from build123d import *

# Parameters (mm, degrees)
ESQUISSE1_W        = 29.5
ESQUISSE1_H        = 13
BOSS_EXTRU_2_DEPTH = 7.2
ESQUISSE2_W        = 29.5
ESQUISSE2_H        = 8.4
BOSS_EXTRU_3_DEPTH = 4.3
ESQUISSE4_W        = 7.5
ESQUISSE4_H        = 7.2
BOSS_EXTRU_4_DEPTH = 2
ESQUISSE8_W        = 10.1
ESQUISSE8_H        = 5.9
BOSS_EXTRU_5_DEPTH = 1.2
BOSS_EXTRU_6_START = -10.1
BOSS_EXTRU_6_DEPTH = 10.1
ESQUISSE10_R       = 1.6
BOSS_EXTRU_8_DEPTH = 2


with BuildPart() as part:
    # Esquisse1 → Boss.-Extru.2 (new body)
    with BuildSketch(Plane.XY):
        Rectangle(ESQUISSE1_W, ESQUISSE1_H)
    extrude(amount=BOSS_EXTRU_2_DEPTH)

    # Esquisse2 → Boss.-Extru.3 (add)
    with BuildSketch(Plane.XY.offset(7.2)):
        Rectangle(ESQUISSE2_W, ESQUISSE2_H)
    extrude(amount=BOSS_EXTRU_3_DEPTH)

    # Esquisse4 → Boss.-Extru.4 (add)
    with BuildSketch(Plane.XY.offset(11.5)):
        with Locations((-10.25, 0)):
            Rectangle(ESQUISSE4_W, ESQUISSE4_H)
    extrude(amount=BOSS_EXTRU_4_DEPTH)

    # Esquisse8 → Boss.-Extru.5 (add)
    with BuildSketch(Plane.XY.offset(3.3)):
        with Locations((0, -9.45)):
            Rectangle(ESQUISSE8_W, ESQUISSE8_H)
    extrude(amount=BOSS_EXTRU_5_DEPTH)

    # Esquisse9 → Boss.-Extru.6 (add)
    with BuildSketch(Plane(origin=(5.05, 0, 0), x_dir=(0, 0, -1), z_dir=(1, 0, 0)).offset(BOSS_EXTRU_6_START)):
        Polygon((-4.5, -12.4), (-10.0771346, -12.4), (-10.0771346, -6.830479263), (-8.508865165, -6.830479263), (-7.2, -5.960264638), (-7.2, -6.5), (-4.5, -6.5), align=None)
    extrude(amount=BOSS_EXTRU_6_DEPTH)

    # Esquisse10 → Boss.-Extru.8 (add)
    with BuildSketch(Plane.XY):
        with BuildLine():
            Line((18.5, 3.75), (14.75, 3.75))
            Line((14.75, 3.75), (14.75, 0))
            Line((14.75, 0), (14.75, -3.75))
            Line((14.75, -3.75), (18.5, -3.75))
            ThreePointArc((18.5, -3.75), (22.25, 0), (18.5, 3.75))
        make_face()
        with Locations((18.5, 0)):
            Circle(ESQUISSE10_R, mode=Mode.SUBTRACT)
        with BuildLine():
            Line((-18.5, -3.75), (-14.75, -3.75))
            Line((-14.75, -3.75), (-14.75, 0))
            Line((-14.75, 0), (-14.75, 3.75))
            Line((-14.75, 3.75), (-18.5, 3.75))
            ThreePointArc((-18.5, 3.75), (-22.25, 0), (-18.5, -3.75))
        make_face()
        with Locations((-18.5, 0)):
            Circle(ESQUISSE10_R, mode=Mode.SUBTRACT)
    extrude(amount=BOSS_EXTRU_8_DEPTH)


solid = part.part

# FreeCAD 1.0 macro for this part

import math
import FreeCAD as App
import Part
import Sketcher

doc = App.newDocument("Part")
params = doc.addObject("Spreadsheet::Sheet", "Params")
for row, (alias, value) in enumerate([
    ("sketch1_height", "13 mm"),
    ("sketch1_width", "29.5 mm"),
    ("pad1_length", "7.2 mm"),
    ("sketch2_width", "29.5 mm"),
    ("sketch2_height", "8.4 mm"),
    ("pad2_length", "4.3 mm"),
    ("sketch3_width", "7.5 mm"),
    ("sketch3_height", "7.2 mm"),
    ("pad3_length", "2 mm"),
    ("sketch4_width", "10.1 mm"),
    ("sketch4_height", "5.9 mm"),
    ("pad4_length", "1.2 mm"),
    ("sketch5_width", "5.9 mm"),
    ("sketch5_height", "2.7 mm"),
    ("pad5_length", "10.1 mm"),
    ("sketch6_diameter", "3.2 mm"),
    ("sketch6_radius", "3.75 mm"),
    ("sketch6_width", "3.75 mm"),
    ("pad6_length", "2 mm"),
], start=1):
    params.set(f"A{row}", alias)
    params.set(f"B{row}", "=" + value)
    params.setAlias(f"B{row}", alias)

body = doc.addObject("PartDesign::Body", "Body")

# Sketch on XY plane
sketch1 = doc.addObject("Sketcher::SketchObject", "Sketch")
body.addObject(sketch1)
sketch1.AttachmentSupport = (doc.XY_Plane, [""])
sketch1.MapMode = "FlatFace"
sketch1.addGeometry([
    Part.LineSegment(App.Vector(-15, 6, 0), App.Vector(-15, -6, 0)),
    Part.LineSegment(App.Vector(-15, -6, 0), App.Vector(15, -6, 0)),
    Part.LineSegment(App.Vector(15, -6, 0), App.Vector(15, 6, 0)),
    Part.LineSegment(App.Vector(15, 6, 0), App.Vector(-15, 6, 0)),
], False)
sketch1.addConstraint([
    Sketcher.Constraint("Coincident", 0, 2, 1, 1),
    Sketcher.Constraint("Coincident", 1, 2, 2, 1),
    Sketcher.Constraint("Coincident", 2, 2, 3, 1),
    Sketcher.Constraint("Coincident", 3, 2, 0, 1),
    Sketcher.Constraint("Vertical", 0),
    Sketcher.Constraint("Horizontal", 1),
    Sketcher.Constraint("Vertical", 2),
    Sketcher.Constraint("Horizontal", 3),
    Sketcher.Constraint("Symmetric", 0, 2, 2, 2, -1, 1),
    Sketcher.Constraint("DistanceY", 0, 2, 0, 1, 13.0),
    Sketcher.Constraint("DistanceX", 1, 1, 1, 2, 29.5),
])
sketch1.setExpression("Constraints[9]", "Params.sketch1_height")
sketch1.setExpression("Constraints[10]", "Params.sketch1_width")
pad1 = doc.addObject("PartDesign::Pad", "Pad")
body.addObject(pad1)
pad1.Profile = sketch1
pad1.setExpression("Length", "Params.pad1_length")

# Sketch on XY plane
sketch2 = doc.addObject("Sketcher::SketchObject", "Sketch001")
body.addObject(sketch2)
sketch2.AttachmentSupport = (doc.XY_Plane, [""])
sketch2.MapMode = "FlatFace"
sketch2.AttachmentOffset = App.Placement(App.Vector(0, 0, 7.2), App.Rotation())
sketch2.addGeometry([
    Part.LineSegment(App.Vector(-15, 4, 0), App.Vector(-15, -4, 0)),
    Part.LineSegment(App.Vector(-15, -4, 0), App.Vector(15, -4, 0)),
    Part.LineSegment(App.Vector(15, -4, 0), App.Vector(15, 4, 0)),
    Part.LineSegment(App.Vector(15, 4, 0), App.Vector(-15, 4, 0)),
], False)
sketch2.addConstraint([
    Sketcher.Constraint("Coincident", 0, 2, 1, 1),
    Sketcher.Constraint("Coincident", 1, 2, 2, 1),
    Sketcher.Constraint("Coincident", 2, 2, 3, 1),
    Sketcher.Constraint("Coincident", 3, 2, 0, 1),
    Sketcher.Constraint("Vertical", 0),
    Sketcher.Constraint("Horizontal", 1),
    Sketcher.Constraint("Vertical", 2),
    Sketcher.Constraint("Horizontal", 3),
    Sketcher.Constraint("Symmetric", 0, 2, 2, 2, -1, 1),
    Sketcher.Constraint("DistanceX", 1, 1, 1, 2, 29.5),
    Sketcher.Constraint("DistanceY", 0, 2, 0, 1, 8.4),
])
sketch2.setExpression("Constraints[9]", "Params.sketch2_width")
sketch2.setExpression("Constraints[10]", "Params.sketch2_height")
pad2 = doc.addObject("PartDesign::Pad", "Pad001")
body.addObject(pad2)
pad2.Profile = sketch2
pad2.setExpression("Length", "Params.pad2_length")

# Sketch on XY plane
sketch3 = doc.addObject("Sketcher::SketchObject", "Sketch002")
body.addObject(sketch3)
sketch3.AttachmentSupport = (doc.XY_Plane, [""])
sketch3.MapMode = "FlatFace"
sketch3.AttachmentOffset = App.Placement(App.Vector(0, 0, 11.5), App.Rotation())
sketch3.addGeometry([
    Part.LineSegment(App.Vector(-14, 4, 0), App.Vector(-14, -4, 0)),
    Part.LineSegment(App.Vector(-14, -4, 0), App.Vector(-6, -4, 0)),
    Part.LineSegment(App.Vector(-6, -4, 0), App.Vector(-6, 4, 0)),
    Part.LineSegment(App.Vector(-6, 4, 0), App.Vector(-14, 4, 0)),
], False)
sketch3.addConstraint([
    Sketcher.Constraint("Coincident", 0, 2, 1, 1),
    Sketcher.Constraint("Coincident", 1, 2, 2, 1),
    Sketcher.Constraint("Coincident", 2, 2, 3, 1),
    Sketcher.Constraint("Coincident", 3, 2, 0, 1),
    Sketcher.Constraint("Vertical", 0),
    Sketcher.Constraint("Horizontal", 1),
    Sketcher.Constraint("Vertical", 2),
    Sketcher.Constraint("Horizontal", 3),
    Sketcher.Constraint("DistanceX", 1, 1, 1, 2, 7.5),
    Sketcher.Constraint("DistanceY", 0, 2, 0, 1, 7.2),
    Sketcher.Constraint("DistanceX", 0, 2, -1, 1, 14.0),
    Sketcher.Constraint("DistanceY", 0, 2, -1, 1, 3.6),
])
sketch3.setExpression("Constraints[8]", "Params.sketch3_width")
sketch3.setExpression("Constraints[9]", "Params.sketch3_height")
pad3 = doc.addObject("PartDesign::Pad", "Pad002")
body.addObject(pad3)
pad3.Profile = sketch3
pad3.setExpression("Length", "Params.pad3_length")

# Sketch on XY plane
sketch4 = doc.addObject("Sketcher::SketchObject", "Sketch003")
body.addObject(sketch4)
sketch4.AttachmentSupport = (doc.XY_Plane, [""])
sketch4.MapMode = "FlatFace"
sketch4.AttachmentOffset = App.Placement(App.Vector(0, 0, 3.3), App.Rotation())
sketch4.addGeometry([
    Part.LineSegment(App.Vector(-5, -6, 0), App.Vector(-5, -12, 0)),
    Part.LineSegment(App.Vector(-5, -12, 0), App.Vector(5, -12, 0)),
    Part.LineSegment(App.Vector(5, -12, 0), App.Vector(5, -6, 0)),
    Part.LineSegment(App.Vector(5, -6, 0), App.Vector(-5, -6, 0)),
], False)
sketch4.addConstraint([
    Sketcher.Constraint("Coincident", 0, 2, 1, 1),
    Sketcher.Constraint("Coincident", 1, 2, 2, 1),
    Sketcher.Constraint("Coincident", 2, 2, 3, 1),
    Sketcher.Constraint("Coincident", 3, 2, 0, 1),
    Sketcher.Constraint("Vertical", 0),
    Sketcher.Constraint("Horizontal", 1),
    Sketcher.Constraint("Vertical", 2),
    Sketcher.Constraint("Horizontal", 3),
    Sketcher.Constraint("DistanceX", 1, 1, 1, 2, 10.1),
    Sketcher.Constraint("DistanceY", 0, 2, 0, 1, 5.9),
    Sketcher.Constraint("DistanceY", 0, 2, -1, 1, 12.4),
    Sketcher.Constraint("DistanceX", 0, 2, -1, 1, 5.05),
])
sketch4.setExpression("Constraints[8]", "Params.sketch4_width")
sketch4.setExpression("Constraints[9]", "Params.sketch4_height")
pad4 = doc.addObject("PartDesign::Pad", "Pad003")
body.addObject(pad4)
pad4.Profile = sketch4
pad4.setExpression("Length", "Params.pad4_length")

# Sketch on YZ plane
sketch5 = doc.addObject("Sketcher::SketchObject", "Sketch004")
body.addObject(sketch5)
sketch5.AttachmentSupport = (doc.YZ_Plane, [""])
sketch5.MapMode = "FlatFace"
sketch5.AttachmentOffset = App.Placement(App.Vector(0, 0, -5.05), App.Rotation())
sketch5.addGeometry([
    Part.LineSegment(App.Vector(-12.4, 10.1, 0), App.Vector(-12.4, 4.5, 0)),  # 0
    Part.LineSegment(App.Vector(-12.4, 4.5, 0), App.Vector(-6.5, 4.5, 0)),  # 1
    Part.LineSegment(App.Vector(-6.5, 4.5, 0), App.Vector(-6.5, 7.2, 0)),  # 2
    Part.LineSegment(App.Vector(-6.5, 7.2, 0), App.Vector(-6, 7.2, 0)),  # 3
    Part.LineSegment(App.Vector(-6, 7.2, 0), App.Vector(-6.8, 8.5, 0)),  # 4
    Part.LineSegment(App.Vector(-6.8, 8.5, 0), App.Vector(-6.8, 10.1, 0)),  # 5
    Part.LineSegment(App.Vector(-6.8, 10.1, 0), App.Vector(-12.4, 10.1, 0)),  # 6
], False)
sketch5.addConstraint([
    Sketcher.Constraint("Coincident", 0, 2, 1, 1),
    Sketcher.Constraint("Coincident", 1, 2, 2, 1),
    Sketcher.Constraint("Coincident", 2, 2, 3, 1),
    Sketcher.Constraint("Coincident", 3, 2, 4, 1),
    Sketcher.Constraint("Coincident", 4, 2, 5, 1),
    Sketcher.Constraint("Coincident", 5, 2, 6, 1),
    Sketcher.Constraint("Coincident", 6, 2, 0, 1),
    Sketcher.Constraint("Vertical", 0),
    Sketcher.Constraint("Horizontal", 1),
    Sketcher.Constraint("Vertical", 2),
    Sketcher.Constraint("Horizontal", 3),
    Sketcher.Constraint("Vertical", 5),
    Sketcher.Constraint("Horizontal", 6),
    Sketcher.Constraint("DistanceX", 1, 1, 1, 2, 5.9),
    Sketcher.Constraint("DistanceY", 2, 1, 2, 2, 2.7),
    Sketcher.Constraint("DistanceX", 0, 2, -1, 1, 12.4),
    Sketcher.Constraint("DistanceY", -1, 1, 0, 2, 4.5),
    Sketcher.Constraint("DistanceX", 6, 2, 6, 1, 5.569521),
    Sketcher.Constraint("DistanceY", 5, 1, 5, 2, 1.568269),
    Sketcher.Constraint("Distance", 4, 1.571751),
    Sketcher.Constraint("DistanceX", 3, 1, 3, 2, 0.539735),
])
sketch5.setExpression("Constraints[13]", "Params.sketch5_width")
sketch5.setExpression("Constraints[14]", "Params.sketch5_height")
pad5 = doc.addObject("PartDesign::Pad", "Pad004")
body.addObject(pad5)
pad5.Profile = sketch5
pad5.setExpression("Length", "Params.pad5_length")

# Sketch on XY plane
sketch6 = doc.addObject("Sketcher::SketchObject", "Sketch005")
body.addObject(sketch6)
sketch6.AttachmentSupport = (doc.XY_Plane, [""])
sketch6.MapMode = "FlatFace"
sketch6.addGeometry([
    Part.LineSegment(App.Vector(18.5, 3.8, 0), App.Vector(14.8, 3.8, 0)),  # 0
    Part.LineSegment(App.Vector(14.8, 3.8, 0), App.Vector(14.8, -3.8, 0)),  # 1
    Part.LineSegment(App.Vector(14.8, -3.8, 0), App.Vector(18.5, -3.8, 0)),  # 2
    Part.ArcOfCircle(Part.Circle(App.Vector(18.5, 0, 0), App.Vector(0, 0, 1), 3.8), math.radians(-90), math.radians(90)),  # 3
    Part.Circle(App.Vector(18.5, 0, 0), App.Vector(0, 0, 1), 1.6),  # 4
    Part.LineSegment(App.Vector(-18.5, -3.8, 0), App.Vector(-14.8, -3.8, 0)),  # 5
    Part.LineSegment(App.Vector(-14.8, -3.8, 0), App.Vector(-14.8, 3.8, 0)),  # 6
    Part.LineSegment(App.Vector(-14.8, 3.8, 0), App.Vector(-18.5, 3.8, 0)),  # 7
    Part.ArcOfCircle(Part.Circle(App.Vector(-18.5, 0, 0), App.Vector(0, 0, 1), 3.8), math.radians(90), math.radians(270)),  # 8
    Part.Circle(App.Vector(-18.5, 0, 0), App.Vector(0, 0, 1), 1.6),  # 9
], False)
sketch6.addConstraint([
    Sketcher.Constraint("Coincident", 0, 2, 1, 1),
    Sketcher.Constraint("Coincident", 1, 2, 2, 1),
    Sketcher.Constraint("Tangent", 2, 2, 3, 1),
    Sketcher.Constraint("Tangent", 3, 2, 0, 1),
    Sketcher.Constraint("Coincident", 5, 2, 6, 1),
    Sketcher.Constraint("Coincident", 6, 2, 7, 1),
    Sketcher.Constraint("Tangent", 7, 2, 8, 1),
    Sketcher.Constraint("Tangent", 8, 2, 5, 1),
    Sketcher.Constraint("Horizontal", 0),
    Sketcher.Constraint("Vertical", 1),
    Sketcher.Constraint("Horizontal", 2),
    Sketcher.Constraint("Horizontal", 5),
    Sketcher.Constraint("Vertical", 6),
    Sketcher.Constraint("Horizontal", 7),
    Sketcher.Constraint("Coincident", 4, 3, 3, 3),
    Sketcher.Constraint("Coincident", 9, 3, 8, 3),
    Sketcher.Constraint("Equal", 3, 8),
    Sketcher.Constraint("Equal", 4, 9),
    Sketcher.Constraint("Symmetric", 3, 3, 8, 3, -1, 1),
    Sketcher.Constraint("Symmetric", 1, 2, 5, 2, -2),
    Sketcher.Constraint("Diameter", 4, 3.2),
    Sketcher.Constraint("Radius", 3, 3.75),
    Sketcher.Constraint("DistanceX", 8, 3, 3, 3, 37.0),
    Sketcher.Constraint("DistanceX", 0, 2, 0, 1, 3.75),
])
sketch6.setExpression("Constraints[20]", "Params.sketch6_diameter")
sketch6.setExpression("Constraints[21]", "Params.sketch6_radius")
sketch6.setExpression("Constraints[23]", "Params.sketch6_width")
pad6 = doc.addObject("PartDesign::Pad", "Pad005")
body.addObject(pad6)
pad6.Profile = sketch6
pad6.setExpression("Length", "Params.pad6_length")

doc.recompute()
